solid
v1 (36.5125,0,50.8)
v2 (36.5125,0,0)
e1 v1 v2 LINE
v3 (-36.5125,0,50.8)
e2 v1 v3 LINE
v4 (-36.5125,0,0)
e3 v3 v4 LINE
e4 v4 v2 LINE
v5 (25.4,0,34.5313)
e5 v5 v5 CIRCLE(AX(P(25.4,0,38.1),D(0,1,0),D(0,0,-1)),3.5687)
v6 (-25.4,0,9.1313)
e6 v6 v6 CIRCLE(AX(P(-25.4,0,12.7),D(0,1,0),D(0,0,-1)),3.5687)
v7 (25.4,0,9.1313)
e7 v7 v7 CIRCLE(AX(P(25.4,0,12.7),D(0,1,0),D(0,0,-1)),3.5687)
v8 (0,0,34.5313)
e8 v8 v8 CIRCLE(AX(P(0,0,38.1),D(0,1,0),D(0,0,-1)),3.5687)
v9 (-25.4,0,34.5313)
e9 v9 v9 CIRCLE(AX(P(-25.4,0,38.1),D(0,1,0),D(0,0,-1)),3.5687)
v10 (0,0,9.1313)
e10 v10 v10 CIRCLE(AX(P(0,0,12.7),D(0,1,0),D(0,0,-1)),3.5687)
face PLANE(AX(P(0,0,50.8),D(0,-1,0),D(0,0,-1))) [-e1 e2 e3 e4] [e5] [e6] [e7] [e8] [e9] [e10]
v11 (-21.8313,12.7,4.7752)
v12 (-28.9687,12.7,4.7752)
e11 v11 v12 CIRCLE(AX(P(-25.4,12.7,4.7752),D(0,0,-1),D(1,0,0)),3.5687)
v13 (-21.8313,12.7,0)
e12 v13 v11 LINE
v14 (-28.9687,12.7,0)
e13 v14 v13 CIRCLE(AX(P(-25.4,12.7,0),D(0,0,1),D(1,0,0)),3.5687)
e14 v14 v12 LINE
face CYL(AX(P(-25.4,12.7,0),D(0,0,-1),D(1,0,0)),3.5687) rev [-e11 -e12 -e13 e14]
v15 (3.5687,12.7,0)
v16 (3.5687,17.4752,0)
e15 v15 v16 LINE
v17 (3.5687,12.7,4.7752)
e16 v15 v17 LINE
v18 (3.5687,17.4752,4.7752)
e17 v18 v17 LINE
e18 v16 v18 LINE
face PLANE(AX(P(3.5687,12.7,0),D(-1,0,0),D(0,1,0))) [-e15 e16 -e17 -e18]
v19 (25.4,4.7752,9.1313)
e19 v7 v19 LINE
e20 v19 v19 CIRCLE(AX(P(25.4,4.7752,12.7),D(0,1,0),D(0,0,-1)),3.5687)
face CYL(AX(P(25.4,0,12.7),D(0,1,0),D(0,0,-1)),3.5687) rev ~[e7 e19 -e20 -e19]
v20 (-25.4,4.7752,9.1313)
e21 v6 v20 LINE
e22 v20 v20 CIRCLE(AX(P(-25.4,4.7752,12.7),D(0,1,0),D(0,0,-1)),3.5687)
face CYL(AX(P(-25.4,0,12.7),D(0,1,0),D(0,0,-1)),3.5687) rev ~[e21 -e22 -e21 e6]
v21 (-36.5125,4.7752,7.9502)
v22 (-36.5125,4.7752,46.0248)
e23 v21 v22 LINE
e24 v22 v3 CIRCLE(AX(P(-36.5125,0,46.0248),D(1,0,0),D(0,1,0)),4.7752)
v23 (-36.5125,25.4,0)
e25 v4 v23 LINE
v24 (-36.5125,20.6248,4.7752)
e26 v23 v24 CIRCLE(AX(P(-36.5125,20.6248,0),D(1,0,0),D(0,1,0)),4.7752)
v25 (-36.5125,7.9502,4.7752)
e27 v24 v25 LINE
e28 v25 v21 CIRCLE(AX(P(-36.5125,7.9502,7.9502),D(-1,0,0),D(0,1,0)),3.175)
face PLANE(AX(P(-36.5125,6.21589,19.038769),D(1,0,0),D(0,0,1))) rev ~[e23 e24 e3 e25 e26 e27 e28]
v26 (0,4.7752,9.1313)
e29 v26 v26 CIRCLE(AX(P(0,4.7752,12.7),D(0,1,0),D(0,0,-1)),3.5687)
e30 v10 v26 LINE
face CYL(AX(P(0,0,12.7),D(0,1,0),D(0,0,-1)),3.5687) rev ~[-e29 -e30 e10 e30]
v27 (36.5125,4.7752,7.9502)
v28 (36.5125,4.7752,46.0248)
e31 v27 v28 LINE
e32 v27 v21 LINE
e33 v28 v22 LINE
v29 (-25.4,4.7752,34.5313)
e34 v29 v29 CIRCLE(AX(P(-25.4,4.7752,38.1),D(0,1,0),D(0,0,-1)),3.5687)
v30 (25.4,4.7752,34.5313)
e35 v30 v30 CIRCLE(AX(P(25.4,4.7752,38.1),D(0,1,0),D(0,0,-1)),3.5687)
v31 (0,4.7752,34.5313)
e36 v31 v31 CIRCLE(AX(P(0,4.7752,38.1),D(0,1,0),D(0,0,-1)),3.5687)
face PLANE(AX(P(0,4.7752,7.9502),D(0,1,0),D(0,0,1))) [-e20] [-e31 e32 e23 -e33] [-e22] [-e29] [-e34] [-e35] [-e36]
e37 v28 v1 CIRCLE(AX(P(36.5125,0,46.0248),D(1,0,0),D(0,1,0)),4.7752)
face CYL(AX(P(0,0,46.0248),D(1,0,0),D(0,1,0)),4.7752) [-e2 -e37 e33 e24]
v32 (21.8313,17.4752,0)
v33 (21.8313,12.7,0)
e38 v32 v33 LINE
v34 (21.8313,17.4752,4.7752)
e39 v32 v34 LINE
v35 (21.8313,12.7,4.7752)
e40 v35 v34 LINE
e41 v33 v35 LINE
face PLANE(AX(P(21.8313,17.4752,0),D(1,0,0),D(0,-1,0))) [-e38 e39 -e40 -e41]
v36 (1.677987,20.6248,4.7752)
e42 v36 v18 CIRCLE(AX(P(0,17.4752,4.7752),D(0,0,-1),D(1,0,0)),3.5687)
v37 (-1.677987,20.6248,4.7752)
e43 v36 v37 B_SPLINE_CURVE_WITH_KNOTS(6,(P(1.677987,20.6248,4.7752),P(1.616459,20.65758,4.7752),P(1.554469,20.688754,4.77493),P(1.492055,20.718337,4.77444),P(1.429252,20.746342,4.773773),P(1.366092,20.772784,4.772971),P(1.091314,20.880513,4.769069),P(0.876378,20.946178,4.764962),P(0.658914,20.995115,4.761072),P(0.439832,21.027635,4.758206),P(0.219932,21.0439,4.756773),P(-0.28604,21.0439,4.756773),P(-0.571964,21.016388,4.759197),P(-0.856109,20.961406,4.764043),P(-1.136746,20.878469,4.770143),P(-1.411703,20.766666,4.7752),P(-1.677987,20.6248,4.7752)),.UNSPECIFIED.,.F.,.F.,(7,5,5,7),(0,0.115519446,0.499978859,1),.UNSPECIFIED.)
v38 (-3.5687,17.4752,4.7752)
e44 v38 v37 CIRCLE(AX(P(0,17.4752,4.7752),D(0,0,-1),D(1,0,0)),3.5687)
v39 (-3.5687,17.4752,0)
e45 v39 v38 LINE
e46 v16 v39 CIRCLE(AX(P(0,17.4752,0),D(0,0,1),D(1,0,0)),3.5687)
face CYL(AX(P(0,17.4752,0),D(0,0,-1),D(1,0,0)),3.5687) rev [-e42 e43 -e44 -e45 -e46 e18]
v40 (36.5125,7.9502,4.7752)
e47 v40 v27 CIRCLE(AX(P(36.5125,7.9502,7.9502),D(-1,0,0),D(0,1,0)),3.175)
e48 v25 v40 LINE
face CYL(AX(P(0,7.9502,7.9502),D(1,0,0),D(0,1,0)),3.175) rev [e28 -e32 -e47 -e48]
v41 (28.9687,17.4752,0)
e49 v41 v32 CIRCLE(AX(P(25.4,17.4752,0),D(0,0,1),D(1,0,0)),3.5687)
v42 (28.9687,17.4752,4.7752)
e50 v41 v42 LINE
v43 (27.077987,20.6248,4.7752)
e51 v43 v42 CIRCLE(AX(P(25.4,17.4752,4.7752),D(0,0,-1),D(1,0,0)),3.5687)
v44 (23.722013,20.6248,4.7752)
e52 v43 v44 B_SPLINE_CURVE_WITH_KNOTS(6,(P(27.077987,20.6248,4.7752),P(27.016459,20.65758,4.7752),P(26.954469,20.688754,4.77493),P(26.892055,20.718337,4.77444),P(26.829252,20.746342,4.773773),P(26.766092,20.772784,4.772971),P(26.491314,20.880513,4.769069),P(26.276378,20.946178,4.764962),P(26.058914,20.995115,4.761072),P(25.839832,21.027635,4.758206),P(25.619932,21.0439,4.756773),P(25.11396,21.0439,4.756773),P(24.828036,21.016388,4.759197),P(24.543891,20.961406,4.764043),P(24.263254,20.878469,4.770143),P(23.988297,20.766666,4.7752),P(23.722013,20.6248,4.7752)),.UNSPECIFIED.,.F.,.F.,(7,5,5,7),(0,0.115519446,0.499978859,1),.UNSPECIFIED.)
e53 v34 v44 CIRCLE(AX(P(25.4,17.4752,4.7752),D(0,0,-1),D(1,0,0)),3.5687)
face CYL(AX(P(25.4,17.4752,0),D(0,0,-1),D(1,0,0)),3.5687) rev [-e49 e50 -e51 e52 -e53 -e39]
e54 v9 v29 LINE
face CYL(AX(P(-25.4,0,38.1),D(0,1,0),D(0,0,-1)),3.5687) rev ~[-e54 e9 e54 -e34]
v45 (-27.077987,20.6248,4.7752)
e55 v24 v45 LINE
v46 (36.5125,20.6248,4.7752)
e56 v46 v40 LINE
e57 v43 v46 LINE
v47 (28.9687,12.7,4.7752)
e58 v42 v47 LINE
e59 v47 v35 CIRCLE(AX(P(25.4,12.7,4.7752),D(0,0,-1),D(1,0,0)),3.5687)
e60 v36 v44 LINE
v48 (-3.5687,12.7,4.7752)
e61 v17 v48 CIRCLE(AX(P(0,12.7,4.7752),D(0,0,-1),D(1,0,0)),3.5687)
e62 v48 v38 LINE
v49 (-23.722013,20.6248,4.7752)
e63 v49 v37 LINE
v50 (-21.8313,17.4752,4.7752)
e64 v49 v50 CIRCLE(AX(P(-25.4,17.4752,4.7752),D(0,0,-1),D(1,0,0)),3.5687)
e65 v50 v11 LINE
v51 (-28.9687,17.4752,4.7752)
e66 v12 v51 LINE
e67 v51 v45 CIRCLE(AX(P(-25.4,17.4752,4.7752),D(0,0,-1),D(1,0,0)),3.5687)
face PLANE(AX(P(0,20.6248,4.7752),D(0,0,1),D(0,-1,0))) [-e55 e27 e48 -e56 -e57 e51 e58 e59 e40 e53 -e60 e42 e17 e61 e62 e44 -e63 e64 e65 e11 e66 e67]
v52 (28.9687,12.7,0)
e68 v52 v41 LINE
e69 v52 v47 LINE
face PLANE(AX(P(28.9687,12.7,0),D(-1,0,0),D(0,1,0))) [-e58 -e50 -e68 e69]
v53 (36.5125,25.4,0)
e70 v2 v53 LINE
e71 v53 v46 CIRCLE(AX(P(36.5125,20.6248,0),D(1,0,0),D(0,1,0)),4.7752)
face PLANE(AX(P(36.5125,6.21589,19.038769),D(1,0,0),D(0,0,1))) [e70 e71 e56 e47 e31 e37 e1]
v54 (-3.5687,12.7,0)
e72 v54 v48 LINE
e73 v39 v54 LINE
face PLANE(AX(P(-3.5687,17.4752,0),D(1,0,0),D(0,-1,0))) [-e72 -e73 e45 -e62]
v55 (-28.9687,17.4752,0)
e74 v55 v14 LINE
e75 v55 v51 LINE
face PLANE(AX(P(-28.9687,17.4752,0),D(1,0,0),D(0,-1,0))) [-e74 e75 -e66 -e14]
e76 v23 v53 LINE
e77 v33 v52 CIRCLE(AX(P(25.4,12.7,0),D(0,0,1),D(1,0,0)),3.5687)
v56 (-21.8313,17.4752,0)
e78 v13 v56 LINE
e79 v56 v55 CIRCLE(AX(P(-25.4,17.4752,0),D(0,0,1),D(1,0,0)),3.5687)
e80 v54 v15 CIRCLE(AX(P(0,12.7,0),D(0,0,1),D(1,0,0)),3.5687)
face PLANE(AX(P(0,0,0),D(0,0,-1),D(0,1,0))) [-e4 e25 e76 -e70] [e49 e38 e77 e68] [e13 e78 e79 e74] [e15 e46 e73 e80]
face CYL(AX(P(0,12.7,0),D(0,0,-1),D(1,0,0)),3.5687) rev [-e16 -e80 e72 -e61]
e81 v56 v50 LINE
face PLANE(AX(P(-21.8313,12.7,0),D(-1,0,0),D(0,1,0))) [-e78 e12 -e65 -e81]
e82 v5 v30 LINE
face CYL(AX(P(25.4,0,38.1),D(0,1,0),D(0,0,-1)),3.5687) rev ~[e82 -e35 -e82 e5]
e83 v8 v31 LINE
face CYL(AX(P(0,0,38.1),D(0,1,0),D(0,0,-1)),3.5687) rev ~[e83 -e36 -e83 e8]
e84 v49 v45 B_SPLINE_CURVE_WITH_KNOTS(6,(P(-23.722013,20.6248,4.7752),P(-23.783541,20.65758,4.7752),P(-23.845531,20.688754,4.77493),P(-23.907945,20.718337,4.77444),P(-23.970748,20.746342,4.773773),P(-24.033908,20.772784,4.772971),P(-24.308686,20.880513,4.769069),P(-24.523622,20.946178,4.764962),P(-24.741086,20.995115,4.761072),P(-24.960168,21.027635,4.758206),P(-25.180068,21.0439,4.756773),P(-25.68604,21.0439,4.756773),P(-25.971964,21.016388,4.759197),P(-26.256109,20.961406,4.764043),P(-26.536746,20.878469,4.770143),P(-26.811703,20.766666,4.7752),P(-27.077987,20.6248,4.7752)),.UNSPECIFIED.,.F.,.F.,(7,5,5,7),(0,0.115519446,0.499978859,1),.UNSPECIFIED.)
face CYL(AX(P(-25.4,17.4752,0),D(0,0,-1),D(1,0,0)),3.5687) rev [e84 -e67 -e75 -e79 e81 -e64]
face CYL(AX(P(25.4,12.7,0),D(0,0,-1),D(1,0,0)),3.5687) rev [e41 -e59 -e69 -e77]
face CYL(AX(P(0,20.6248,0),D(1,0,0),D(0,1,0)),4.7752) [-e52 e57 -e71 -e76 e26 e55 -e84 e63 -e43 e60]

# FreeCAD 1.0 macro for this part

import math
import FreeCAD as App
import Part
import Sketcher
from FreeCAD import Vector
Q = App.Units.Quantity

doc = App.newDocument("Part")
body = doc.addObject("PartDesign::Body", "Body")

# Sketch on YZ plane
sketch1 = body.newObject("Sketcher::SketchObject", "Sketch")
sketch1.AttachmentSupport = (doc.getObject("YZ_Plane"), [""])
sketch1.MapMode = "FlatFace"
sketch1.addGeometry(Part.ArcOfCircle(Part.Circle(Vector(0, 46, 0), Vector(0, 0, 1), 4.8), math.radians(0), math.radians(90)), False)
sketch1.addGeometry(Part.LineSegment(Vector(0, 50.8, 0), Vector(0, 0, 0)), False)
sketch1.addGeometry(Part.LineSegment(Vector(0, 0, 0), Vector(25.4, 0, 0)), False)
sketch1.addGeometry(Part.ArcOfCircle(Part.Circle(Vector(20.6, 0, 0), Vector(0, 0, 1), 4.8), math.radians(0), math.radians(90)), False)
sketch1.addGeometry(Part.LineSegment(Vector(20.6, 4.8, 0), Vector(8, 4.8, 0)), False)
sketch1.addGeometry(Part.ArcOfCircle(Part.Circle(Vector(8, 8, 0), Vector(0, 0, 1), 3.2), math.radians(180), math.radians(270)), False)
sketch1.addGeometry(Part.LineSegment(Vector(4.8, 8, 0), Vector(4.8, 46, 0)), False)
sketch1.addConstraint(Sketcher.Constraint("Coincident", 0, 2, 1, 1))
sketch1.addConstraint(Sketcher.Constraint("Coincident", 1, 2, 2, 1))
sketch1.addConstraint(Sketcher.Constraint("Coincident", 2, 2, 3, 1))
sketch1.addConstraint(Sketcher.Constraint("Tangent", 3, 2, 4, 1))
sketch1.addConstraint(Sketcher.Constraint("Tangent", 4, 2, 5, 2))
sketch1.addConstraint(Sketcher.Constraint("Tangent", 5, 1, 6, 1))
sketch1.addConstraint(Sketcher.Constraint("Tangent", 6, 2, 0, 1))
sketch1.addConstraint(Sketcher.Constraint("Vertical", 1))
sketch1.addConstraint(Sketcher.Constraint("Horizontal", 2))
sketch1.addConstraint(Sketcher.Constraint("Horizontal", 4))
sketch1.addConstraint(Sketcher.Constraint("Vertical", 6))
sketch1.addConstraint(Sketcher.Constraint("Coincident", 1, 2, -1, 1))
sketch1.addConstraint(Sketcher.Constraint("Equal", 0, 3))
sketch1.addConstraint(Sketcher.Constraint("PointOnObject", 0, 3, -2))
sketch1.addConstraint(Sketcher.Constraint("PointOnObject", 3, 3, -1))
sketch1.addConstraint(Sketcher.Constraint("DistanceX", 2, 1, 2, 2, Q("1 in")))
sketch1.addConstraint(Sketcher.Constraint("DistanceY", 1, 2, 1, 1, Q("2 in")))
sketch1.addConstraint(Sketcher.Constraint("Radius", 0, Q("0.188 in")))
sketch1.addConstraint(Sketcher.Constraint("Radius", 5, Q("0.125 in")))
pad1 = body.newObject("PartDesign::Pad", "Pad")
pad1.Profile = sketch1
pad1.Type = "TwoLengths"
pad1.Length = Q("1.4375 in")
pad1.Length2 = Q("1.4375 in")
pad1.Reversed = True

# Sketch on XZ plane
sketch2 = body.newObject("Sketcher::SketchObject", "Sketch001")
sketch2.AttachmentSupport = (doc.getObject("XZ_Plane"), [""])
sketch2.MapMode = "FlatFace"
sketch2.addGeometry(Part.Circle(Vector(25.4, 12.7, 0), Vector(0, 0, 1), 3.6), False)
sketch2.addConstraint(Sketcher.Constraint("Diameter", 0, Q("0.281 in")))
sketch2.addConstraint(Sketcher.Constraint("DistanceX", -1, 1, 0, 3, Q("1 in")))
sketch2.addConstraint(Sketcher.Constraint("DistanceY", -1, 1, 0, 3, Q("0.5 in")))
doc.recompute()
hole = body.newObject("PartDesign::Hole", "Hole")
hole.Profile = sketch2
hole.ThreadType = "None"
hole.Diameter = Q("0.281 in")
hole.DepthType = "Dimension"
hole.Depth = Q("0.2067992 in")
hole.DrillPoint = "Flat"

# Sketch on XZ plane
sketch3 = body.newObject("Sketcher::SketchObject", "Sketch002")
sketch3.AttachmentSupport = (doc.getObject("XZ_Plane"), [""])
sketch3.MapMode = "FlatFace"
sketch3.addGeometry(Part.Circle(Vector(0, 12.7, 0), Vector(0, 0, 1), 3.6), False)
sketch3.addConstraint(Sketcher.Constraint("PointOnObject", 0, 3, -2))
sketch3.addConstraint(Sketcher.Constraint("Diameter", 0, Q("0.281 in")))
sketch3.addConstraint(Sketcher.Constraint("DistanceY", -1, 1, 0, 3, Q("0.5 in")))
doc.recompute()
hole2 = body.newObject("PartDesign::Hole", "Hole001")
hole2.Profile = sketch3
hole2.ThreadType = "None"
hole2.Diameter = Q("0.281 in")
hole2.DepthType = "Dimension"
hole2.Depth = Q("0.2067992 in")
hole2.DrillPoint = "Flat"

# Sketch on XZ plane
sketch4 = body.newObject("Sketcher::SketchObject", "Sketch003")
sketch4.AttachmentSupport = (doc.getObject("XZ_Plane"), [""])
sketch4.MapMode = "FlatFace"
sketch4.addGeometry(Part.Circle(Vector(-25.4, 12.7, 0), Vector(0, 0, 1), 3.6), False)
sketch4.addConstraint(Sketcher.Constraint("Diameter", 0, Q("0.281 in")))
sketch4.addConstraint(Sketcher.Constraint("DistanceX", 0, 3, -1, 1, Q("1 in")))
sketch4.addConstraint(Sketcher.Constraint("DistanceY", -1, 1, 0, 3, Q("0.5 in")))
doc.recompute()
hole3 = body.newObject("PartDesign::Hole", "Hole002")
hole3.Profile = sketch4
hole3.ThreadType = "None"
hole3.Diameter = Q("0.281 in")
hole3.DepthType = "Dimension"
hole3.Depth = Q("0.2067992 in")
hole3.DrillPoint = "Flat"

# Sketch on XZ plane
sketch5 = body.newObject("Sketcher::SketchObject", "Sketch004")
sketch5.AttachmentSupport = (doc.getObject("XZ_Plane"), [""])
sketch5.MapMode = "FlatFace"
sketch5.addGeometry(Part.Circle(Vector(25.4, 38.1, 0), Vector(0, 0, 1), 3.6), False)
sketch5.addConstraint(Sketcher.Constraint("Diameter", 0, Q("0.281 in")))
sketch5.addConstraint(Sketcher.Constraint("DistanceX", -1, 1, 0, 3, Q("1 in")))
sketch5.addConstraint(Sketcher.Constraint("DistanceY", -1, 1, 0, 3, Q("1.5 in")))
doc.recompute()
hole4 = body.newObject("PartDesign::Hole", "Hole003")
hole4.Profile = sketch5
hole4.ThreadType = "None"
hole4.Diameter = Q("0.281 in")
hole4.DepthType = "Dimension"
hole4.Depth = Q("0.2067992 in")
hole4.DrillPoint = "Flat"

# Sketch on XZ plane
sketch6 = body.newObject("Sketcher::SketchObject", "Sketch005")
sketch6.AttachmentSupport = (doc.getObject("XZ_Plane"), [""])
sketch6.MapMode = "FlatFace"
sketch6.addGeometry(Part.Circle(Vector(0, 38.1, 0), Vector(0, 0, 1), 3.6), False)
sketch6.addConstraint(Sketcher.Constraint("PointOnObject", 0, 3, -2))
sketch6.addConstraint(Sketcher.Constraint("Diameter", 0, Q("0.281 in")))
sketch6.addConstraint(Sketcher.Constraint("DistanceY", -1, 1, 0, 3, Q("1.5 in")))
doc.recompute()
hole5 = body.newObject("PartDesign::Hole", "Hole004")
hole5.Profile = sketch6
hole5.ThreadType = "None"
hole5.Diameter = Q("0.281 in")
hole5.DepthType = "Dimension"
hole5.Depth = Q("0.2067992 in")
hole5.DrillPoint = "Flat"

# Sketch on XZ plane
sketch7 = body.newObject("Sketcher::SketchObject", "Sketch006")
sketch7.AttachmentSupport = (doc.getObject("XZ_Plane"), [""])
sketch7.MapMode = "FlatFace"
sketch7.addGeometry(Part.Circle(Vector(-25.4, 38.1, 0), Vector(0, 0, 1), 3.6), False)
sketch7.addConstraint(Sketcher.Constraint("Diameter", 0, Q("0.281 in")))
sketch7.addConstraint(Sketcher.Constraint("DistanceX", 0, 3, -1, 1, Q("1 in")))
sketch7.addConstraint(Sketcher.Constraint("DistanceY", -1, 1, 0, 3, Q("1.5 in")))
doc.recompute()
hole6 = body.newObject("PartDesign::Hole", "Hole005")
hole6.Profile = sketch7
hole6.ThreadType = "None"
hole6.Diameter = Q("0.281 in")
hole6.DepthType = "Dimension"
hole6.Depth = Q("0.2067992 in")
hole6.DrillPoint = "Flat"

# Sketch on XY plane
sketch8 = body.newObject("Sketcher::SketchObject", "Sketch007")
sketch8.AttachmentSupport = (doc.getObject("XY_Plane"), [""])
sketch8.MapMode = "FlatFace"
sketch8.addGeometry(Part.LineSegment(Vector(21.8, 17.5, 0), Vector(21.8, 12.7, 0)), False)
sketch8.addGeometry(Part.ArcOfCircle(Part.Circle(Vector(25.4, 12.7, 0), Vector(0, 0, 1), 3.6), math.radians(180), math.radians(360)), False)
sketch8.addGeometry(Part.LineSegment(Vector(29, 12.7, 0), Vector(29, 17.5, 0)), False)
sketch8.addGeometry(Part.ArcOfCircle(Part.Circle(Vector(25.4, 17.5, 0), Vector(0, 0, 1), 3.6), math.radians(0), math.radians(180)), False)
sketch8.addConstraint(Sketcher.Constraint("Tangent", 0, 2, 1, 1))
sketch8.addConstraint(Sketcher.Constraint("Tangent", 1, 2, 2, 1))
sketch8.addConstraint(Sketcher.Constraint("Tangent", 2, 2, 3, 1))
sketch8.addConstraint(Sketcher.Constraint("Tangent", 3, 2, 0, 1))
sketch8.addConstraint(Sketcher.Constraint("Vertical", 0))
sketch8.addConstraint(Sketcher.Constraint("Vertical", 2))
sketch8.addConstraint(Sketcher.Constraint("DistanceX", -1, 1, 1, 3, Q("1 in")))
sketch8.addConstraint(Sketcher.Constraint("DistanceY", -1, 1, 1, 3, Q("0.5 in")))
sketch8.addConstraint(Sketcher.Constraint("Radius", 1, Q("0.1405 in")))
sketch8.addConstraint(Sketcher.Constraint("DistanceY", 0, 2, 0, 1, Q("0.188 in")))
pocket1 = body.newObject("PartDesign::Pocket", "Pocket")
pocket1.Profile = sketch8
pocket1.Length = Q("0.282 in")
pocket1.Reversed = True

# Sketch on XY plane
sketch9 = body.newObject("Sketcher::SketchObject", "Sketch008")
sketch9.AttachmentSupport = (doc.getObject("XY_Plane"), [""])
sketch9.MapMode = "FlatFace"
sketch9.addGeometry(Part.LineSegment(Vector(-3.6, 17.5, 0), Vector(-3.6, 12.7, 0)), False)
sketch9.addGeometry(Part.ArcOfCircle(Part.Circle(Vector(0, 12.7, 0), Vector(0, 0, 1), 3.6), math.radians(180), math.radians(360)), False)
sketch9.addGeometry(Part.LineSegment(Vector(3.6, 12.7, 0), Vector(3.6, 17.5, 0)), False)
sketch9.addGeometry(Part.ArcOfCircle(Part.Circle(Vector(0, 17.5, 0), Vector(0, 0, 1), 3.6), math.radians(0), math.radians(180)), False)
sketch9.addConstraint(Sketcher.Constraint("Tangent", 0, 2, 1, 1))
sketch9.addConstraint(Sketcher.Constraint("Tangent", 1, 2, 2, 1))
sketch9.addConstraint(Sketcher.Constraint("Tangent", 2, 2, 3, 1))
sketch9.addConstraint(Sketcher.Constraint("Tangent", 3, 2, 0, 1))
sketch9.addConstraint(Sketcher.Constraint("Vertical", 0))
sketch9.addConstraint(Sketcher.Constraint("Vertical", 2))
sketch9.addConstraint(Sketcher.Constraint("PointOnObject", 1, 3, -2))
sketch9.addConstraint(Sketcher.Constraint("DistanceY", -1, 1, 1, 3, Q("0.5 in")))
sketch9.addConstraint(Sketcher.Constraint("Radius", 1, Q("0.1405 in")))
sketch9.addConstraint(Sketcher.Constraint("DistanceY", 0, 2, 0, 1, Q("0.188 in")))
pocket2 = body.newObject("PartDesign::Pocket", "Pocket001")
pocket2.Profile = sketch9
pocket2.Length = Q("0.282 in")
pocket2.Reversed = True

# Sketch on XY plane
sketch10 = body.newObject("Sketcher::SketchObject", "Sketch009")
sketch10.AttachmentSupport = (doc.getObject("XY_Plane"), [""])
sketch10.MapMode = "FlatFace"
sketch10.addGeometry(Part.LineSegment(Vector(-29, 17.5, 0), Vector(-29, 12.7, 0)), False)
sketch10.addGeometry(Part.ArcOfCircle(Part.Circle(Vector(-25.4, 12.7, 0), Vector(0, 0, 1), 3.6), math.radians(180), math.radians(360)), False)
sketch10.addGeometry(Part.LineSegment(Vector(-21.8, 12.7, 0), Vector(-21.8, 17.5, 0)), False)
sketch10.addGeometry(Part.ArcOfCircle(Part.Circle(Vector(-25.4, 17.5, 0), Vector(0, 0, 1), 3.6), math.radians(0), math.radians(180)), False)
sketch10.addConstraint(Sketcher.Constraint("Tangent", 0, 2, 1, 1))
sketch10.addConstraint(Sketcher.Constraint("Tangent", 1, 2, 2, 1))
sketch10.addConstraint(Sketcher.Constraint("Tangent", 2, 2, 3, 1))
sketch10.addConstraint(Sketcher.Constraint("Tangent", 3, 2, 0, 1))
sketch10.addConstraint(Sketcher.Constraint("Vertical", 0))
sketch10.addConstraint(Sketcher.Constraint("Vertical", 2))
sketch10.addConstraint(Sketcher.Constraint("DistanceX", 1, 3, -1, 1, Q("1 in")))
sketch10.addConstraint(Sketcher.Constraint("DistanceY", -1, 1, 1, 3, Q("0.5 in")))
sketch10.addConstraint(Sketcher.Constraint("Radius", 1, Q("0.1405 in")))
sketch10.addConstraint(Sketcher.Constraint("DistanceY", 0, 2, 0, 1, Q("0.188 in")))
pocket3 = body.newObject("PartDesign::Pocket", "Pocket002")
pocket3.Profile = sketch10
pocket3.Length = Q("0.282 in")
pocket3.Reversed = True

doc.recompute()
